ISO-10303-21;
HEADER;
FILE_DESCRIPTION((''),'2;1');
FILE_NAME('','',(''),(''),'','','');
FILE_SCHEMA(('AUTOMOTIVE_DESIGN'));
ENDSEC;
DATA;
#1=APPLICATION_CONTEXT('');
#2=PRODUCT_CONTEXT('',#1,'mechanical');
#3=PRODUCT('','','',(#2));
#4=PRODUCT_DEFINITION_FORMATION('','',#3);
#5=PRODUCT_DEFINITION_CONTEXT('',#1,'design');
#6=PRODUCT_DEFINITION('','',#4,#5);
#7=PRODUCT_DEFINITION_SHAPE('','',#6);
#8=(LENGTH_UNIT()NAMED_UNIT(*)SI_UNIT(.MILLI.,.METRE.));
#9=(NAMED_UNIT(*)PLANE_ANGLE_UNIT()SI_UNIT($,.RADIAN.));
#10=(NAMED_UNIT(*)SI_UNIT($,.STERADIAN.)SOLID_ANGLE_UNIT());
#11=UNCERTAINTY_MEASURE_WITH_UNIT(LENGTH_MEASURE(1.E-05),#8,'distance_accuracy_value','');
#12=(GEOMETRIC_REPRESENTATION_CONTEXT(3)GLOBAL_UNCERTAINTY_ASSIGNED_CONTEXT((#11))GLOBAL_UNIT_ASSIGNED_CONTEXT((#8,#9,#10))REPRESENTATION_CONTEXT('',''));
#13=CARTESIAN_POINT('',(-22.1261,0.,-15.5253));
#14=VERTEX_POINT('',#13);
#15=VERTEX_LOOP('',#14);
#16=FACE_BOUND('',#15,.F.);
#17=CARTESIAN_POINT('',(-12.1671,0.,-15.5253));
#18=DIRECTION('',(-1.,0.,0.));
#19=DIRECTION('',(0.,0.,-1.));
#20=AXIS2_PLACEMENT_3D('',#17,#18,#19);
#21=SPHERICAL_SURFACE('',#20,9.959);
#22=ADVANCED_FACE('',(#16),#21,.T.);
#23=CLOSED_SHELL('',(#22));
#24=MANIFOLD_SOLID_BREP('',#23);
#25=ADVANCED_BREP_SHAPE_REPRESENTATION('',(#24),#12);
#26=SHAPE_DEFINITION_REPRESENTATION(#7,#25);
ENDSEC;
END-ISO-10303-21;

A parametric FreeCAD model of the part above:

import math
import FreeCAD as App
import Part
import Sketcher
Q = App.Units.Quantity

doc = App.newDocument("Part")
params = doc.addObject("Spreadsheet::Sheet", "Params")
for row, (alias, value) in enumerate([
    ("revolution_angle", "360 deg"),
], start=1):
    params.set(f"A{row}", alias)
    params.set(f"B{row}", "=" + value)
    params.setAlias(f"B{row}", alias)

body = doc.addObject("PartDesign::Body", "Body")

sketch1 = body.newObject("Sketcher::SketchObject", "Sketch")
sketch1.AttachmentSupport = (doc.getObject("XZ_Plane"), [""])
sketch1.MapMode = "FlatFace"
sketch1.addGeometry(Part.LineSegment(App.Vector(-22.1261, -15.5253, 0), App.Vector(-2.2081, -15.5253, 0)), False)
sketch1.addGeometry(Part.ArcOfCircle(Part.Circle(App.Vector(-12.1671, -15.5253, 0), App.Vector(0, 0, 1), 9.959), math.radians(180), math.radians(360)), False)
sketch1.addGeometry(Part.LineSegment(App.Vector(-22.1261, -15.5253, 0), App.Vector(-2.2081, -15.5253, 0)), True)
sketch1.addConstraint(Sketcher.Constraint("Coincident", 0, 1, 1, 1))
sketch1.addConstraint(Sketcher.Constraint("Coincident", 1, 2, 0, 2))
sketch1.addConstraint(Sketcher.Constraint("Horizontal", 0))
sketch1.addConstraint(Sketcher.Constraint("Horizontal", 2))
sketch1.addConstraint(Sketcher.Constraint("Coincident", 2, 1, 0, 1))
sketch1.addConstraint(Sketcher.Constraint("Horizontal", 1, 3, 0, 1))
sketch1.addConstraint(Sketcher.Constraint("Equal", 0, 2))
sketch1.addConstraint(Sketcher.Constraint("Radius", 1, Q("9.959 mm")))
sketch1.addConstraint(Sketcher.Constraint("DistanceX", 1, 3, -1, 1, Q("12.167 mm")))
sketch1.addConstraint(Sketcher.Constraint("DistanceY", 1, 3, -1, 1, Q("15.5253 mm")))
revolution = body.newObject("PartDesign::Revolution", "Revolution")
revolution.Profile = sketch1
revolution.ReferenceAxis = (sketch1, ["Axis0"])
revolution.setExpression("Angle", "Params.revolution_angle")

doc.recompute()
